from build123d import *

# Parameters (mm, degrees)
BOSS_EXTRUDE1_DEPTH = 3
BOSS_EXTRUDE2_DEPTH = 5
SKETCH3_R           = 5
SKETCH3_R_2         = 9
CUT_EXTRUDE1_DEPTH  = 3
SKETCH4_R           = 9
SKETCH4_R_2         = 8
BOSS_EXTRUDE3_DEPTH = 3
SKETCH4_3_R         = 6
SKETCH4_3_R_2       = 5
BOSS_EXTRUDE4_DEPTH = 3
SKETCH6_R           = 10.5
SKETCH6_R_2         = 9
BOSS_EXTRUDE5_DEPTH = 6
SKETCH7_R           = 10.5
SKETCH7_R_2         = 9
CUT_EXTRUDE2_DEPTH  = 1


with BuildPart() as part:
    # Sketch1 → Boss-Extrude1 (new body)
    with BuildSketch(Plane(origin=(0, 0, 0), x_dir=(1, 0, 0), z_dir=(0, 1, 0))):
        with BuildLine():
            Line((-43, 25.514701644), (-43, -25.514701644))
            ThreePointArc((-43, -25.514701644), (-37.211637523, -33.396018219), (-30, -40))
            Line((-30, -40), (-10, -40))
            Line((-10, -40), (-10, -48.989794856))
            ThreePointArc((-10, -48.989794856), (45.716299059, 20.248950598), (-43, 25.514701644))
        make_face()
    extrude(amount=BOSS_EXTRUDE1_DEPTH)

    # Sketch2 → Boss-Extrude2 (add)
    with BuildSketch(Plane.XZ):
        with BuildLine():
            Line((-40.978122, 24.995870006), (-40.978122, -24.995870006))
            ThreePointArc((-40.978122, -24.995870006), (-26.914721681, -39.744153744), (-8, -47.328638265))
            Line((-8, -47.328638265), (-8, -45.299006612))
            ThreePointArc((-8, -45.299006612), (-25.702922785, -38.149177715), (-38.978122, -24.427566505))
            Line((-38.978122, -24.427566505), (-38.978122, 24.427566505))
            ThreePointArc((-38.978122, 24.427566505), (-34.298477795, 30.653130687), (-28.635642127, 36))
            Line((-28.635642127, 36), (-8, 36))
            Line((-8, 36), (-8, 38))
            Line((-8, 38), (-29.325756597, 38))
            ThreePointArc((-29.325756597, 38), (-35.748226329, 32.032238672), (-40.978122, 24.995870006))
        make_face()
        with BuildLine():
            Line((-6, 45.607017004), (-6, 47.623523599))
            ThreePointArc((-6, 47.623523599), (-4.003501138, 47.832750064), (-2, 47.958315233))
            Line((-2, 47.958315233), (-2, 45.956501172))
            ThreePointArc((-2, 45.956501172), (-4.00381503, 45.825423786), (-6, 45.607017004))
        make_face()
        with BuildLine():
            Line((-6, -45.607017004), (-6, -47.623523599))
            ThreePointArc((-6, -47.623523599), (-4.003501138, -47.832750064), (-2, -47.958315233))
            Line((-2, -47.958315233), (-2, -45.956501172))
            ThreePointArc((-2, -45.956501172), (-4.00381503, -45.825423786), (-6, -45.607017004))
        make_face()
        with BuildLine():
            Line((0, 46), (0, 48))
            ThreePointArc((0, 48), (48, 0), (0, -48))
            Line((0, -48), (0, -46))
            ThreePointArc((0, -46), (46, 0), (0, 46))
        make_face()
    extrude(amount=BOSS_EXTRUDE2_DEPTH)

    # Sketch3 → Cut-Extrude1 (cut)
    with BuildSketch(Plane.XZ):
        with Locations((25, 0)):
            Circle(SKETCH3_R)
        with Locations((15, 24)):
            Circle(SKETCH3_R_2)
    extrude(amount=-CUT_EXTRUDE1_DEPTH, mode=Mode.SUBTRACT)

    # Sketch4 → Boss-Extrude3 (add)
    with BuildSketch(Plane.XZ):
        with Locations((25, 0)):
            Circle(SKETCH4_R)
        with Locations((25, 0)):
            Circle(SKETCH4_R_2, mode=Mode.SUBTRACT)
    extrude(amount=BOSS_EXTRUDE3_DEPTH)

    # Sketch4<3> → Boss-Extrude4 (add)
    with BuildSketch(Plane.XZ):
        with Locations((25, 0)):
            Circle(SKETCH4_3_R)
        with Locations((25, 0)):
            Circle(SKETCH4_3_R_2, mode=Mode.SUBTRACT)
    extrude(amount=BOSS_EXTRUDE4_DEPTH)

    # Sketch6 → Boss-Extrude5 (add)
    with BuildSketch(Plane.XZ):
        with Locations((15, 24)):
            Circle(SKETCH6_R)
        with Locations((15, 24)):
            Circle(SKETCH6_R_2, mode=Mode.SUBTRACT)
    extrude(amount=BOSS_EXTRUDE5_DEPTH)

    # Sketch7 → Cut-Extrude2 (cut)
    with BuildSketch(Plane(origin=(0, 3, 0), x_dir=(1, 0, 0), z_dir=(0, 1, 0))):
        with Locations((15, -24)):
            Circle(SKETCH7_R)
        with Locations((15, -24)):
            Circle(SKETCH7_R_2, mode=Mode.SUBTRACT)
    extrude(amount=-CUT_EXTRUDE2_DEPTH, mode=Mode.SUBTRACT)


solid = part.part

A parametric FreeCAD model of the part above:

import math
import FreeCAD as App
import Part
import Sketcher

V = App.Vector
Q = App.Units.Quantity

doc = App.newDocument("Part")
body = doc.addObject("PartDesign::Body", "Body")

sketch1 = body.newObject("Sketcher::SketchObject", "Sketch")
sketch1.AttachmentSupport = (doc.getObject("XZ_Plane"), [""])
sketch1.MapMode = "FlatFace"
sketch1.addGeometry([
    Part.LineSegment(V(-43, -26, 0), V(-43, 26, 0)),
    Part.ArcOfCircle(Part.Circle(V(0, 0, 0), V(0, 0, 1), 50), math.radians(127), math.radians(149)),
    Part.LineSegment(V(-30, 40, 0), V(-10, 40, 0)),
    Part.LineSegment(V(-10, 40, 0), V(-10, 49, 0)),
    Part.ArcOfCircle(Part.Circle(V(0, 0, 0), V(0, 0, 1), 50), math.radians(-149), math.radians(102)),
], False)
sketch1.addConstraint([
    Sketcher.Constraint("Coincident", 0, 2, 1, 2),
    Sketcher.Constraint("Coincident", 1, 1, 2, 1),
    Sketcher.Constraint("Coincident", 2, 2, 3, 1),
    Sketcher.Constraint("Coincident", 3, 2, 4, 2),
    Sketcher.Constraint("Coincident", 4, 1, 0, 1),
    Sketcher.Constraint("Vertical", 0),
    Sketcher.Constraint("Horizontal", 2),
    Sketcher.Constraint("Vertical", 3),
    Sketcher.Constraint("Coincident", 1, 3, -1, 1),
    Sketcher.Constraint("Coincident", 4, 3, -1, 1),
    Sketcher.Constraint("Equal", 1, 4),
    Sketcher.Constraint("Radius", 1, Q("50 mm")),
    Sketcher.Constraint("DistanceX", 2, 1, 2, 2, Q("20 mm")),
    Sketcher.Constraint("DistanceX", 0, 2, -1, 1, Q("43 mm")),
    Sketcher.Constraint("DistanceX", 1, 1, -1, 1, Q("30 mm")),
])
pad1 = body.newObject("PartDesign::Pad", "Pad")
pad1.Profile = sketch1
pad1.Length = 3
pad1.Reversed = True

sketch2 = body.newObject("Sketcher::SketchObject", "Sketch001")
sketch2.AttachmentSupport = (doc.getObject("XZ_Plane"), [""])
sketch2.MapMode = "FlatFace"
sketch2.addGeometry([
    Part.LineSegment(V(-41, 25, 0), V(-41, -25, 0)),
    Part.ArcOfCircle(Part.Circle(V(0, 0, 0), V(0, 0, 1), 48), math.radians(-149), math.radians(-100)),
    Part.LineSegment(V(-8, -47.3, 0), V(-8, -45.3, 0)),
    Part.ArcOfCircle(Part.Circle(V(0, 0, 0), V(0, 0, 1), 46), math.radians(-148), math.radians(-100)),
    Part.LineSegment(V(-39, -24.4, 0), V(-39, 24.4, 0)),
    Part.ArcOfCircle(Part.Circle(V(0, 0, 0), V(0, 0, 1), 46), math.radians(128.5), math.radians(147.92)),
    Part.LineSegment(V(-28.6, 36, 0), V(-8, 36, 0)),
    Part.LineSegment(V(-8, 36, 0), V(-8, 38, 0)),
    Part.LineSegment(V(-8, 38, 0), V(-29.3, 38, 0)),
    Part.ArcOfCircle(Part.Circle(V(0, 0, 0), V(0, 0, 1), 48), math.radians(128), math.radians(149)),
    Part.LineSegment(V(-6, 47.6, 0), V(-6, 45.6, 0)),
    Part.ArcOfCircle(Part.Circle(V(0, 0, 0), V(0, 0, 1), 46), math.radians(92.49), math.radians(97.49)),
    Part.LineSegment(V(-2, 46, 0), V(-2, 48, 0)),
    Part.ArcOfCircle(Part.Circle(V(0, 0, 0), V(0, 0, 1), 48), math.radians(92.39), math.radians(97.18)),
    Part.LineSegment(V(-6, -45.6, 0), V(-6, -47.6, 0)),
    Part.ArcOfCircle(Part.Circle(V(0, 0, 0), V(0, 0, 1), 48), math.radians(-97.18), math.radians(-92.39)),
    Part.LineSegment(V(-2, -48, 0), V(-2, -46, 0)),
    Part.ArcOfCircle(Part.Circle(V(0, 0, 0), V(0, 0, 1), 46), math.radians(-97.49), math.radians(-92.49)),
    Part.LineSegment(V(0, 48, 0), V(0, 46, 0)),
    Part.ArcOfCircle(Part.Circle(V(0, 0, 0), V(0, 0, 1), 46), math.radians(-90), math.radians(90)),
    Part.LineSegment(V(0, -46, 0), V(0, -48, 0)),
    Part.ArcOfCircle(Part.Circle(V(0, 0, 0), V(0, 0, 1), 48), math.radians(-90), math.radians(90)),
], False)
sketch2.addConstraint([
    Sketcher.Constraint("Coincident", 0, 2, 1, 1),
    Sketcher.Constraint("Coincident", 1, 2, 2, 1),
    Sketcher.Constraint("Coincident", 2, 2, 3, 2),
    Sketcher.Constraint("Coincident", 3, 1, 4, 1),
    Sketcher.Constraint("Coincident", 4, 2, 5, 2),
    Sketcher.Constraint("Coincident", 5, 1, 6, 1),
    Sketcher.Constraint("Coincident", 6, 2, 7, 1),
    Sketcher.Constraint("Coincident", 7, 2, 8, 1),
    Sketcher.Constraint("Coincident", 8, 2, 9, 1),
    Sketcher.Constraint("Coincident", 9, 2, 0, 1),
    Sketcher.Constraint("Coincident", 10, 2, 11, 2),
    Sketcher.Constraint("Coincident", 11, 1, 12, 1),
    Sketcher.Constraint("Coincident", 12, 2, 13, 1),
    Sketcher.Constraint("Coincident", 13, 2, 10, 1),
    Sketcher.Constraint("Coincident", 14, 2, 15, 1),
    Sketcher.Constraint("Coincident", 15, 2, 16, 1),
    Sketcher.Constraint("Coincident", 16, 2, 17, 2),
    Sketcher.Constraint("Coincident", 17, 1, 14, 1),
    Sketcher.Constraint("Coincident", 18, 2, 19, 2),
    Sketcher.Constraint("Coincident", 19, 1, 20, 1),
    Sketcher.Constraint("Coincident", 20, 2, 21, 1),
    Sketcher.Constraint("Coincident", 21, 2, 18, 1),
    Sketcher.Constraint("Vertical", 0),
    Sketcher.Constraint("Vertical", 2),
    Sketcher.Constraint("Vertical", 4),
    Sketcher.Constraint("Horizontal", 6),
    Sketcher.Constraint("Vertical", 7),
    Sketcher.Constraint("Horizontal", 8),
    Sketcher.Constraint("Vertical", 10),
    Sketcher.Constraint("Vertical", 12),
    Sketcher.Constraint("Vertical", 14),
    Sketcher.Constraint("Vertical", 16),
    Sketcher.Constraint("Vertical", 18),
    Sketcher.Constraint("Vertical", 20),
    Sketcher.Constraint("Coincident", 1, 3, -1, 1),
    Sketcher.Constraint("Coincident", 3, 3, -1, 1),
    Sketcher.Constraint("Coincident", 5, 3, -1, 1),
    Sketcher.Constraint("Coincident", 9, 3, -1, 1),
    Sketcher.Constraint("Coincident", 11, 3, -1, 1),
    Sketcher.Constraint("Coincident", 13, 3, -1, 1),
    Sketcher.Constraint("Coincident", 15, 3, -1, 1),
    Sketcher.Constraint("Coincident", 17, 3, -1, 1),
    Sketcher.Constraint("Coincident", 19, 3, -1, 1),
    Sketcher.Constraint("Coincident", 21, 3, -1, 1),
    Sketcher.Constraint("Equal", 3, 5),
    Sketcher.Constraint("Equal", 1, 9),
    Sketcher.Constraint("Equal", 5, 11),
    Sketcher.Constraint("Equal", 9, 13),
    Sketcher.Constraint("Equal", 13, 15),
    Sketcher.Constraint("Equal", 11, 17),
    Sketcher.Constraint("Equal", 17, 19),
    Sketcher.Constraint("Equal", 15, 21),
    Sketcher.Constraint("PointOnObject", 18, 2, -2),
    Sketcher.Constraint("PointOnObject", 19, 1, -2),
    Sketcher.Constraint("Vertical", 2, 2, 6, 2),
    Sketcher.Constraint("Vertical", 13, 2, 14, 2),
    Sketcher.Constraint("Vertical", 12, 2, 15, 2),
    Sketcher.Constraint("Equal", 7, 18),
    Sketcher.Constraint("Radius", 1, Q("48 mm")),
    Sketcher.Constraint("Radius", 3, Q("46 mm")),
    Sketcher.Constraint("DistanceX", 1, 2, -1, 1, Q("8 mm")),
    Sketcher.Constraint("DistanceY", -1, 1, 5, 1, Q("36 mm")),
    Sketcher.Constraint("DistanceX", 10, 2, -1, 1, Q("6 mm")),
    Sketcher.Constraint("DistanceX", 11, 1, -1, 1, Q("2 mm")),
    Sketcher.Constraint("DistanceX", 0, 2, 3, 1, Q("2 mm")),
    Sketcher.Constraint("DistanceY", 0, 2, 0, 1, Q("49.99174 mm")),
])
pad2 = body.newObject("PartDesign::Pad", "Pad001")
pad2.Profile = sketch2
pad2.Length = 5

sketch3 = body.newObject("Sketcher::SketchObject", "Sketch002")
sketch3.AttachmentSupport = (doc.getObject("XZ_Plane"), [""])
sketch3.MapMode = "FlatFace"
sketch3.addGeometry([
    Part.Circle(V(25, 0, 0), V(0, 0, 1), 5),
    Part.Circle(V(15, 24, 0), V(0, 0, 1), 9),
], False)
sketch3.addConstraint([
    Sketcher.Constraint("PointOnObject", 0, 3, -1),
    Sketcher.Constraint("Diameter", 0, Q("10 mm")),
    Sketcher.Constraint("Diameter", 1, Q("18 mm")),
    Sketcher.Constraint("DistanceX", -1, 1, 0, 3, Q("25 mm")),
    Sketcher.Constraint("DistanceX", -1, 1, 1, 3, Q("15 mm")),
    Sketcher.Constraint("DistanceY", -1, 1, 1, 3, Q("24 mm")),
])
pocket1 = body.newObject("PartDesign::Pocket", "Pocket")
pocket1.Profile = sketch3
pocket1.Length = 3

sketch4 = body.newObject("Sketcher::SketchObject", "Sketch003")
sketch4.AttachmentSupport = (doc.getObject("XZ_Plane"), [""])
sketch4.MapMode = "FlatFace"
sketch4.addGeometry([
    Part.Circle(V(25, 0, 0), V(0, 0, 1), 9),
    Part.Circle(V(25, 0, 0), V(0, 0, 1), 8),
], False)
sketch4.addConstraint([
    Sketcher.Constraint("Coincident", 1, 3, 0, 3),
    Sketcher.Constraint("PointOnObject", 0, 3, -1),
    Sketcher.Constraint("Diameter", 0, Q("18 mm")),
    Sketcher.Constraint("Diameter", 1, Q("16 mm")),
    Sketcher.Constraint("DistanceX", -1, 1, 0, 3, Q("25 mm")),
])
pad3 = body.newObject("PartDesign::Pad", "Pad002")
pad3.Profile = sketch4
pad3.Length = 3

sketch5 = body.newObject("Sketcher::SketchObject", "Sketch004")
sketch5.AttachmentSupport = (doc.getObject("XZ_Plane"), [""])
sketch5.MapMode = "FlatFace"
sketch5.addGeometry([
    Part.Circle(V(25, 0, 0), V(0, 0, 1), 6),
    Part.Circle(V(25, 0, 0), V(0, 0, 1), 5),
], False)
sketch5.addConstraint([
    Sketcher.Constraint("Coincident", 1, 3, 0, 3),
    Sketcher.Constraint("PointOnObject", 0, 3, -1),
    Sketcher.Constraint("Diameter", 0, Q("12 mm")),
    Sketcher.Constraint("Diameter", 1, Q("10 mm")),
    Sketcher.Constraint("DistanceX", -1, 1, 0, 3, Q("25 mm")),
])
pad4 = body.newObject("PartDesign::Pad", "Pad003")
pad4.Profile = sketch5
pad4.Length = 3

sketch6 = body.newObject("Sketcher::SketchObject", "Sketch005")
sketch6.AttachmentSupport = (doc.getObject("XZ_Plane"), [""])
sketch6.MapMode = "FlatFace"
sketch6.addGeometry([
    Part.Circle(V(15, 24, 0), V(0, 0, 1), 10),
    Part.Circle(V(15, 24, 0), V(0, 0, 1), 9),
], False)
sketch6.addConstraint([
    Sketcher.Constraint("Coincident", 1, 3, 0, 3),
    Sketcher.Constraint("Diameter", 0, Q("21 mm")),
    Sketcher.Constraint("Diameter", 1, Q("18 mm")),
    Sketcher.Constraint("DistanceX", -1, 1, 0, 3, Q("15 mm")),
    Sketcher.Constraint("DistanceY", -1, 1, 0, 3, Q("24 mm")),
])
pad5 = body.newObject("PartDesign::Pad", "Pad004")
pad5.Profile = sketch6
pad5.Length = 6

sketch7 = body.newObject("Sketcher::SketchObject", "Sketch006")
sketch7.AttachmentSupport = (doc.getObject("XZ_Plane"), [""])
sketch7.MapMode = "FlatFace"
sketch7.AttachmentOffset = App.Placement(V(0, 0, -3), App.Rotation())
sketch7.addGeometry([
    Part.Circle(V(15, 24, 0), V(0, 0, 1), 10),
    Part.Circle(V(15, 24, 0), V(0, 0, 1), 9),
], False)
sketch7.addConstraint([
    Sketcher.Constraint("Coincident", 1, 3, 0, 3),
    Sketcher.Constraint("Diameter", 0, Q("21 mm")),
    Sketcher.Constraint("Diameter", 1, Q("18 mm")),
    Sketcher.Constraint("DistanceX", -1, 1, 0, 3, Q("15 mm")),
    Sketcher.Constraint("DistanceY", -1, 1, 0, 3, Q("24 mm")),
])
pocket2 = body.newObject("PartDesign::Pocket", "Pocket001")
pocket2.Profile = sketch7
pocket2.Length = 1
pocket2.Reversed = True

doc.recompute()
